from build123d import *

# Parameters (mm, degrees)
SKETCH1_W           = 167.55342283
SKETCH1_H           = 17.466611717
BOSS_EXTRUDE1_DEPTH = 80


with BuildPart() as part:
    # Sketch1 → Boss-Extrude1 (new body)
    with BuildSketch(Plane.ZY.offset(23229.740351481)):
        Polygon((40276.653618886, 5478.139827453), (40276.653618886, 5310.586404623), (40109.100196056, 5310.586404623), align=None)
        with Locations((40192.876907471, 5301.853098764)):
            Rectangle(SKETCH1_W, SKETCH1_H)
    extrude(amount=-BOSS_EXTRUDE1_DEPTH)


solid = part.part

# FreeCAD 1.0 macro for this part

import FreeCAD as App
import Part
import Sketcher
Q = App.Units.Quantity

doc = App.newDocument("Part")
params = doc.addObject("Spreadsheet::Sheet", "Params")
for row, (alias, value) in enumerate([
    ("pad1_length", "80 mm"),
], start=1):
    params.set(f"A{row}", alias)
    params.set(f"B{row}", "=" + value)
    params.setAlias(f"B{row}", alias)

body = doc.addObject("PartDesign::Body", "Body")

# Sketch on YZ plane
sketch1 = body.newObject("Sketcher::SketchObject", "Sketch")
sketch1.AttachmentSupport = (doc.getObject("YZ_Plane"), [""])
sketch1.MapMode = "FlatFace"
sketch1.AttachmentOffset = App.Placement(App.Vector(0, 0, -23229.740351), App.Rotation())
sketch1.addGeometry([
    Part.LineSegment(App.Vector(5293.119793, 40276.653619, 0), App.Vector(5478.139827, 40276.653619, 0)),
    Part.LineSegment(App.Vector(5478.139827, 40276.653619, 0), App.Vector(5310.586405, 40109.100196, 0)),
    Part.LineSegment(App.Vector(5310.586405, 40109.100196, 0), App.Vector(5293.119793, 40109.100196, 0)),
    Part.LineSegment(App.Vector(5293.119793, 40109.100196, 0), App.Vector(5293.119793, 40276.653619, 0)),
], False)
sketch1.addConstraint([
    Sketcher.Constraint("Coincident", 0, 2, 1, 1),
    Sketcher.Constraint("Coincident", 1, 2, 2, 1),
    Sketcher.Constraint("Coincident", 2, 2, 3, 1),
    Sketcher.Constraint("Coincident", 3, 2, 0, 1),
    Sketcher.Constraint("Horizontal", 0),
    Sketcher.Constraint("Horizontal", 2),
    Sketcher.Constraint("Vertical", 3),
    Sketcher.Constraint("Angle", 1, Q("-135 deg")),
    Sketcher.Constraint("DistanceX", 2, 2, 2, 1, Q("17.466612 mm")),
    Sketcher.Constraint("DistanceX", 0, 1, 0, 2, Q("185.020035 mm")),
    Sketcher.Constraint("DistanceY", -1, 1, 0, 2, Q("40276.653619 mm")),
    Sketcher.Constraint("DistanceX", -1, 1, 0, 2, Q("5478.139827 mm")),
])
pad1 = body.newObject("PartDesign::Pad", "Pad")
pad1.Profile = sketch1
pad1.setExpression("Length", "Params.pad1_length")

doc.recompute()
